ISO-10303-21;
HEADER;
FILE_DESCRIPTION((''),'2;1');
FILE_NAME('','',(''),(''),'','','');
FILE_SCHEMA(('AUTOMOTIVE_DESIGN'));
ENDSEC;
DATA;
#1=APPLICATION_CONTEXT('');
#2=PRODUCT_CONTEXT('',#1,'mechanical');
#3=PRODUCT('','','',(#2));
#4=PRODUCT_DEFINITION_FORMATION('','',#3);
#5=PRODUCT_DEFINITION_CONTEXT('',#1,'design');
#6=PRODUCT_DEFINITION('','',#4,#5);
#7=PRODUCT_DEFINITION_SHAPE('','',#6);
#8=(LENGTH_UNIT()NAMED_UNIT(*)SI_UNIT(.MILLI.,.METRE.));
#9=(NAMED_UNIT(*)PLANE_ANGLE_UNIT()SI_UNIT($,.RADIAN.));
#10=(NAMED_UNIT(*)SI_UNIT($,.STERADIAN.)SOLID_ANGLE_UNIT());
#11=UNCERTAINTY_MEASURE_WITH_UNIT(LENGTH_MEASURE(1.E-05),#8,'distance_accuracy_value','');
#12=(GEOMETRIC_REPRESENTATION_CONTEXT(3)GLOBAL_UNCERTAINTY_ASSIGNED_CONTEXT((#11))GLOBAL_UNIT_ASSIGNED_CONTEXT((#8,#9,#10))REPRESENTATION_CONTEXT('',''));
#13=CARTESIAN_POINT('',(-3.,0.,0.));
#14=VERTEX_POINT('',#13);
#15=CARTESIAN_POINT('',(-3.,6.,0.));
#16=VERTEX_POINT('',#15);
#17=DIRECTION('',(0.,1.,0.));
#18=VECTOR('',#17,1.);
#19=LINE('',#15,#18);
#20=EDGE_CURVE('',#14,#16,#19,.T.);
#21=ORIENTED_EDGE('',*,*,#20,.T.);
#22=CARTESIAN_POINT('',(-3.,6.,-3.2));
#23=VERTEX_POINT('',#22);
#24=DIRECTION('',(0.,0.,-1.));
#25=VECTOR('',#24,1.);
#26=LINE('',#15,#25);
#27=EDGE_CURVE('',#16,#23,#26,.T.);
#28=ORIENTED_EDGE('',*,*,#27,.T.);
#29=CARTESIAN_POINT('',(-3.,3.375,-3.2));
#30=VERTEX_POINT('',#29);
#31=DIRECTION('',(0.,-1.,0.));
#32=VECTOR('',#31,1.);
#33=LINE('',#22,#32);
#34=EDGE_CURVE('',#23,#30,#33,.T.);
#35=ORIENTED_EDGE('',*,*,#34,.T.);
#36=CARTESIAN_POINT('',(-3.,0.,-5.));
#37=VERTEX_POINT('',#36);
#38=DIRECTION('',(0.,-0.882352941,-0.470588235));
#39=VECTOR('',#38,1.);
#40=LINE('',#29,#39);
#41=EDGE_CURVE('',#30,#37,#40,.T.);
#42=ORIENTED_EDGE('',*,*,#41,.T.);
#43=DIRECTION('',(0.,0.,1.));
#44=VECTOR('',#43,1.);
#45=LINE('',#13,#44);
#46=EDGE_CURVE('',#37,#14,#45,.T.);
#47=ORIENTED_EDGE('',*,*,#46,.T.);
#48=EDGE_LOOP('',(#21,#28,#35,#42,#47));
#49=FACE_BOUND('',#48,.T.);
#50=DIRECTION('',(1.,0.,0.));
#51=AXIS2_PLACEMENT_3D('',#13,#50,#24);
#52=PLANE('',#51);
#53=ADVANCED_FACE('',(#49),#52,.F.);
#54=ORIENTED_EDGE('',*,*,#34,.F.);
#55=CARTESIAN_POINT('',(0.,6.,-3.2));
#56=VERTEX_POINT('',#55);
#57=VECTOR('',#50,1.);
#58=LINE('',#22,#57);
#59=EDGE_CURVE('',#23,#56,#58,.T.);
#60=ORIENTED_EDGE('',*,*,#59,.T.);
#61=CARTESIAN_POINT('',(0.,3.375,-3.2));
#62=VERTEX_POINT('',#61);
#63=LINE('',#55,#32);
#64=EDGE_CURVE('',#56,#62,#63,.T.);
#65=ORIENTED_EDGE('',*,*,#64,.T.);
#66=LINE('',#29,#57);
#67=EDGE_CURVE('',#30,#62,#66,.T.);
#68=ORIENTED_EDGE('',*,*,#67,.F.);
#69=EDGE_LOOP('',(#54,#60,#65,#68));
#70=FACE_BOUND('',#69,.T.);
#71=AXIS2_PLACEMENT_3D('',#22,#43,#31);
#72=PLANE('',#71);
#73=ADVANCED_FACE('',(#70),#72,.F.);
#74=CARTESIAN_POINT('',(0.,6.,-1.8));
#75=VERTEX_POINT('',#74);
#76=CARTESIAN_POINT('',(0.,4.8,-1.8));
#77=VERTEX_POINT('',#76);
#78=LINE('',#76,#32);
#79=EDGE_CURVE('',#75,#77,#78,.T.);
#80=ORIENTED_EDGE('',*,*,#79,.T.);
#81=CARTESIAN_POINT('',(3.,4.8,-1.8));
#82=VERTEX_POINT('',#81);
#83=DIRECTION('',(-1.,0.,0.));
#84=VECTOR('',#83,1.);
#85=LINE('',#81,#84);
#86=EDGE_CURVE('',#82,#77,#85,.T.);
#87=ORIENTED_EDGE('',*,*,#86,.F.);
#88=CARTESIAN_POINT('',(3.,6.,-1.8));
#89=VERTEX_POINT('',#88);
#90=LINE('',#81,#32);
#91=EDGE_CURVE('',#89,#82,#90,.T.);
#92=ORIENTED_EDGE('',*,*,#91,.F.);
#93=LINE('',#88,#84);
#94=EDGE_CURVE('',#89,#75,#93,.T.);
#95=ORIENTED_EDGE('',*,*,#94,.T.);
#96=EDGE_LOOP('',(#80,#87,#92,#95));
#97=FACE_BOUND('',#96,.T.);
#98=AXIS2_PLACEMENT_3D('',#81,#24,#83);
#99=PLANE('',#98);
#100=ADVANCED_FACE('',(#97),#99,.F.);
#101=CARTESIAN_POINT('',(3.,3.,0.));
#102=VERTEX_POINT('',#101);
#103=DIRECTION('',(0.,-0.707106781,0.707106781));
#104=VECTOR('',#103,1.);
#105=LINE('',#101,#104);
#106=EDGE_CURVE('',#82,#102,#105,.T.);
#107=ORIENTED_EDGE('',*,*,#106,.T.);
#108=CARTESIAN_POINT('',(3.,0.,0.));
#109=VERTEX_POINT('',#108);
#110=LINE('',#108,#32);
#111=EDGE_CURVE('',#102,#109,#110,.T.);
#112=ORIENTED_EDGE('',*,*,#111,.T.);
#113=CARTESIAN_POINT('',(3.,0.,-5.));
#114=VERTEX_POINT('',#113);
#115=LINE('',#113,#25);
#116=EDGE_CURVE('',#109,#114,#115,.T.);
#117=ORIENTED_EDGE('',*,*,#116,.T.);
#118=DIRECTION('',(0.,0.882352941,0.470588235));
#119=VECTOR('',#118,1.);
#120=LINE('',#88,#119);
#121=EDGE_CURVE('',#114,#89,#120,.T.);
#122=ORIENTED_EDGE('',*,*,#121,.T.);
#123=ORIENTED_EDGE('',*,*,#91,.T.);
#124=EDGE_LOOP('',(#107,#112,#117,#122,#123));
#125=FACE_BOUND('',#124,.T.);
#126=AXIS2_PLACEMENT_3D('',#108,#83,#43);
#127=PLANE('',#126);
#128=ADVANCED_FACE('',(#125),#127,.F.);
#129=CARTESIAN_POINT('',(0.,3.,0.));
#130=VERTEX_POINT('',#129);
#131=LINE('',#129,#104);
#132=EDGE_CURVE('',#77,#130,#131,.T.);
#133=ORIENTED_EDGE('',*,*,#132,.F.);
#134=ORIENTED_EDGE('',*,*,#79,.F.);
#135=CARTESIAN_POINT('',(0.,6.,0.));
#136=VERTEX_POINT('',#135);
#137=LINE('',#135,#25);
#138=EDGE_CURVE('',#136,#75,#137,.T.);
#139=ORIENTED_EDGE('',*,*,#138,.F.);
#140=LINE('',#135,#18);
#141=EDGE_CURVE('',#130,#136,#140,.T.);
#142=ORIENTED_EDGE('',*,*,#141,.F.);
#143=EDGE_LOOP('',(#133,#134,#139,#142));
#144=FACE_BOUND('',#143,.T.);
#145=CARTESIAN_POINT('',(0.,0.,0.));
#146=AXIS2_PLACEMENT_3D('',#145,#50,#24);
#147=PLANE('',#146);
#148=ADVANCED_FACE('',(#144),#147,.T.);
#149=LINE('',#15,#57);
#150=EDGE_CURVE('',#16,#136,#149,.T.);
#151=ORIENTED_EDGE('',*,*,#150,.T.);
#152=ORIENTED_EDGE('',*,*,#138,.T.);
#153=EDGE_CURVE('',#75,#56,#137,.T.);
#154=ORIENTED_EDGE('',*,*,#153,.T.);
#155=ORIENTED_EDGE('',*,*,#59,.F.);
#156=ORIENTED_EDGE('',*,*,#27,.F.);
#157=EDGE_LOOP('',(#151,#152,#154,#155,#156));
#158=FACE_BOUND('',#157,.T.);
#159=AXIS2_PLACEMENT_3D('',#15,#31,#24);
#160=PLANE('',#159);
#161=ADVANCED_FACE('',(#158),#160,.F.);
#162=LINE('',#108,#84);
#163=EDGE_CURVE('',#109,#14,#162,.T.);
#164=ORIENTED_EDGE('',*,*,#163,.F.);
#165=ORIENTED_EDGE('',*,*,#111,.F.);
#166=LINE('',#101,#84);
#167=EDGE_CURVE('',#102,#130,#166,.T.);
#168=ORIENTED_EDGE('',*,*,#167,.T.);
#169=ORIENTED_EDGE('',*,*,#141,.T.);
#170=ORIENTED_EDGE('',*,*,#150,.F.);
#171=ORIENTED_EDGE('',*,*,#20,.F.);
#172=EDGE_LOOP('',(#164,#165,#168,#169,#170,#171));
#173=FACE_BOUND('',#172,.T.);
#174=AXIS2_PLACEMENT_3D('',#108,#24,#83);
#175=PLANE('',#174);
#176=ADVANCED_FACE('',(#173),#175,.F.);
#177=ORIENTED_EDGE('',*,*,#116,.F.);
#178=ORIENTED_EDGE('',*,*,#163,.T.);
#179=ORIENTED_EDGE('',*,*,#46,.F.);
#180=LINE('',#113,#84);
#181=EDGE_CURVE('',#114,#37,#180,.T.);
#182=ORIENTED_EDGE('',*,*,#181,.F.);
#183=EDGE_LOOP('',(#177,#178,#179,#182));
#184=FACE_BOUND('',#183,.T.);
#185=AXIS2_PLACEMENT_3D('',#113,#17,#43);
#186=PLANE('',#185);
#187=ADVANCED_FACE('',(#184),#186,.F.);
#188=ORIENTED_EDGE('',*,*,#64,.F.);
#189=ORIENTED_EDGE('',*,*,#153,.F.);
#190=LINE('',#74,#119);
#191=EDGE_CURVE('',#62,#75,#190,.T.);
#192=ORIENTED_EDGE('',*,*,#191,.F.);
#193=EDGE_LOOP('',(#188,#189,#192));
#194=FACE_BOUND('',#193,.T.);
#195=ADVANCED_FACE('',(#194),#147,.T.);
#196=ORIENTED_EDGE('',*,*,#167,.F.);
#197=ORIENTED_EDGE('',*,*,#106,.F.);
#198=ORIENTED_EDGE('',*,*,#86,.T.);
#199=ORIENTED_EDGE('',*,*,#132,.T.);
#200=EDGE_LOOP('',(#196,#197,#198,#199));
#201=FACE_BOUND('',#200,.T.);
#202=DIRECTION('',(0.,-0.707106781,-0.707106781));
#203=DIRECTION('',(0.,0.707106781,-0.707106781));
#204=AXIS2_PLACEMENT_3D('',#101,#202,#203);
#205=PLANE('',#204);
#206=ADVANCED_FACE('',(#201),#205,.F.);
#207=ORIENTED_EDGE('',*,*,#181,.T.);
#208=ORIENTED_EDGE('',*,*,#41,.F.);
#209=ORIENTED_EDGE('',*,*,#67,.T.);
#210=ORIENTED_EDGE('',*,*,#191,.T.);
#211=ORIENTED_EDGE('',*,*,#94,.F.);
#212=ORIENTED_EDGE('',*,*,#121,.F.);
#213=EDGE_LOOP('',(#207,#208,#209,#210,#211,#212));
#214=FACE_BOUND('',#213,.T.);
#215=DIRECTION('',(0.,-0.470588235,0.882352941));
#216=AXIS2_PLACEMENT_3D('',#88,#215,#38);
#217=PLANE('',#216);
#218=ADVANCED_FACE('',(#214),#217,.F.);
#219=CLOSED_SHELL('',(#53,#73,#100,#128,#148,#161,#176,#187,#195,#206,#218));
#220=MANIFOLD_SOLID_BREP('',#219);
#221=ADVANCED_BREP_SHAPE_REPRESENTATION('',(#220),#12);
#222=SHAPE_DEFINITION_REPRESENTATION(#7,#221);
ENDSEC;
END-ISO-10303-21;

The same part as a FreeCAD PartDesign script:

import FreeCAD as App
import Part
import Sketcher
Q = App.Units.Quantity


def add_polygon(sketch, points):
    """Adds a closed chain of lines whose ends are joined by coincident constraints."""
    first, n = sketch.GeometryCount, len(points)
    for a, b in zip(points, points[1:] + points[:1]):
        sketch.addGeometry(Part.LineSegment(App.Vector(*a, 0), App.Vector(*b, 0)), False)
    for i in range(n):
        sketch.addConstraint(Sketcher.Constraint("Coincident", first + i, 2, first + (i + 1) % n, 1))

doc = App.newDocument("Part")
body = doc.addObject("PartDesign::Body", "Body")

sketch1 = doc.addObject("Sketcher::SketchObject", "Sketch")
body.addObject(sketch1)
sketch1.AttachmentSupport = (doc.YZ_Plane, [""])
sketch1.MapMode = "FlatFace"
add_polygon(sketch1, [(3, 0), (0, 0), (0, -5), (6, -1.8), (4.8, -1.8)])
sketch1.addConstraint(Sketcher.Constraint("Horizontal", 0))
sketch1.addConstraint(Sketcher.Constraint("Vertical", 1))
sketch1.addConstraint(Sketcher.Constraint("Horizontal", 3))
sketch1.addConstraint(Sketcher.Constraint("Coincident", 0, 2, -1, 1))
sketch1.addConstraint(Sketcher.Constraint("DistanceX", 0, 2, 0, 1, 3.0))
sketch1.addConstraint(Sketcher.Constraint("DistanceY", 1, 2, 1, 1, 5.0))
sketch1.addConstraint(Sketcher.Constraint("Angle", 4, Q("135 deg")))
sketch1.addConstraint(Sketcher.Constraint("DistanceX", 3, 2, 3, 1, 1.2))
sketch1.addConstraint(Sketcher.Constraint("DistanceX", -1, 1, 2, 2, 6.0))
pad1 = doc.addObject("PartDesign::Pad", "Pad")
body.addObject(pad1)
pad1.Profile = sketch1
pad1.Length = 3

sketch2 = doc.addObject("Sketcher::SketchObject", "Sketch001")
body.addObject(sketch2)
sketch2.AttachmentSupport = (doc.YZ_Plane, [""])
sketch2.MapMode = "FlatFace"
add_polygon(sketch2, [(6, -3.2), (0, -3.2), (0, 0), (6, 0)])
sketch2.addConstraint(Sketcher.Constraint("Horizontal", 0))
sketch2.addConstraint(Sketcher.Constraint("Vertical", 1))
sketch2.addConstraint(Sketcher.Constraint("Horizontal", 2))
sketch2.addConstraint(Sketcher.Constraint("Vertical", 3))
sketch2.addConstraint(Sketcher.Constraint("Coincident", 1, 2, -1, 1))
sketch2.addConstraint(Sketcher.Constraint("DistanceX", 0, 2, 0, 1, 6.0))
sketch2.addConstraint(Sketcher.Constraint("DistanceY", 1, 1, 1, 2, 3.2))
pad2 = doc.addObject("PartDesign::Pad", "Pad001")
body.addObject(pad2)
pad2.Profile = sketch2
pad2.Length = 3
pad2.Reversed = True

sketch3 = doc.addObject("Sketcher::SketchObject", "Sketch002")
body.addObject(sketch3)
sketch3.AttachmentSupport = (doc.YZ_Plane, [""])
sketch3.MapMode = "FlatFace"
add_polygon(sketch3, [(0, -5), (0, -3.2), (3.375, -3.2)])
sketch3.addConstraint(Sketcher.Constraint("Vertical", 0))
sketch3.addConstraint(Sketcher.Constraint("Horizontal", 1))
sketch3.addConstraint(Sketcher.Constraint("PointOnObject", 0, 2, -2))
sketch3.addConstraint(Sketcher.Constraint("DistanceY", 0, 1, 0, 2, 1.8))
sketch3.addConstraint(Sketcher.Constraint("DistanceY", 2, 2, -1, 1, 5.0))
sketch3.addConstraint(Sketcher.Constraint("DistanceX", 1, 1, 1, 2, 3.375))
pad3 = doc.addObject("PartDesign::Pad", "Pad002")
body.addObject(pad3)
pad3.Profile = sketch3
pad3.Length = 3
pad3.Reversed = True

doc.recompute()
